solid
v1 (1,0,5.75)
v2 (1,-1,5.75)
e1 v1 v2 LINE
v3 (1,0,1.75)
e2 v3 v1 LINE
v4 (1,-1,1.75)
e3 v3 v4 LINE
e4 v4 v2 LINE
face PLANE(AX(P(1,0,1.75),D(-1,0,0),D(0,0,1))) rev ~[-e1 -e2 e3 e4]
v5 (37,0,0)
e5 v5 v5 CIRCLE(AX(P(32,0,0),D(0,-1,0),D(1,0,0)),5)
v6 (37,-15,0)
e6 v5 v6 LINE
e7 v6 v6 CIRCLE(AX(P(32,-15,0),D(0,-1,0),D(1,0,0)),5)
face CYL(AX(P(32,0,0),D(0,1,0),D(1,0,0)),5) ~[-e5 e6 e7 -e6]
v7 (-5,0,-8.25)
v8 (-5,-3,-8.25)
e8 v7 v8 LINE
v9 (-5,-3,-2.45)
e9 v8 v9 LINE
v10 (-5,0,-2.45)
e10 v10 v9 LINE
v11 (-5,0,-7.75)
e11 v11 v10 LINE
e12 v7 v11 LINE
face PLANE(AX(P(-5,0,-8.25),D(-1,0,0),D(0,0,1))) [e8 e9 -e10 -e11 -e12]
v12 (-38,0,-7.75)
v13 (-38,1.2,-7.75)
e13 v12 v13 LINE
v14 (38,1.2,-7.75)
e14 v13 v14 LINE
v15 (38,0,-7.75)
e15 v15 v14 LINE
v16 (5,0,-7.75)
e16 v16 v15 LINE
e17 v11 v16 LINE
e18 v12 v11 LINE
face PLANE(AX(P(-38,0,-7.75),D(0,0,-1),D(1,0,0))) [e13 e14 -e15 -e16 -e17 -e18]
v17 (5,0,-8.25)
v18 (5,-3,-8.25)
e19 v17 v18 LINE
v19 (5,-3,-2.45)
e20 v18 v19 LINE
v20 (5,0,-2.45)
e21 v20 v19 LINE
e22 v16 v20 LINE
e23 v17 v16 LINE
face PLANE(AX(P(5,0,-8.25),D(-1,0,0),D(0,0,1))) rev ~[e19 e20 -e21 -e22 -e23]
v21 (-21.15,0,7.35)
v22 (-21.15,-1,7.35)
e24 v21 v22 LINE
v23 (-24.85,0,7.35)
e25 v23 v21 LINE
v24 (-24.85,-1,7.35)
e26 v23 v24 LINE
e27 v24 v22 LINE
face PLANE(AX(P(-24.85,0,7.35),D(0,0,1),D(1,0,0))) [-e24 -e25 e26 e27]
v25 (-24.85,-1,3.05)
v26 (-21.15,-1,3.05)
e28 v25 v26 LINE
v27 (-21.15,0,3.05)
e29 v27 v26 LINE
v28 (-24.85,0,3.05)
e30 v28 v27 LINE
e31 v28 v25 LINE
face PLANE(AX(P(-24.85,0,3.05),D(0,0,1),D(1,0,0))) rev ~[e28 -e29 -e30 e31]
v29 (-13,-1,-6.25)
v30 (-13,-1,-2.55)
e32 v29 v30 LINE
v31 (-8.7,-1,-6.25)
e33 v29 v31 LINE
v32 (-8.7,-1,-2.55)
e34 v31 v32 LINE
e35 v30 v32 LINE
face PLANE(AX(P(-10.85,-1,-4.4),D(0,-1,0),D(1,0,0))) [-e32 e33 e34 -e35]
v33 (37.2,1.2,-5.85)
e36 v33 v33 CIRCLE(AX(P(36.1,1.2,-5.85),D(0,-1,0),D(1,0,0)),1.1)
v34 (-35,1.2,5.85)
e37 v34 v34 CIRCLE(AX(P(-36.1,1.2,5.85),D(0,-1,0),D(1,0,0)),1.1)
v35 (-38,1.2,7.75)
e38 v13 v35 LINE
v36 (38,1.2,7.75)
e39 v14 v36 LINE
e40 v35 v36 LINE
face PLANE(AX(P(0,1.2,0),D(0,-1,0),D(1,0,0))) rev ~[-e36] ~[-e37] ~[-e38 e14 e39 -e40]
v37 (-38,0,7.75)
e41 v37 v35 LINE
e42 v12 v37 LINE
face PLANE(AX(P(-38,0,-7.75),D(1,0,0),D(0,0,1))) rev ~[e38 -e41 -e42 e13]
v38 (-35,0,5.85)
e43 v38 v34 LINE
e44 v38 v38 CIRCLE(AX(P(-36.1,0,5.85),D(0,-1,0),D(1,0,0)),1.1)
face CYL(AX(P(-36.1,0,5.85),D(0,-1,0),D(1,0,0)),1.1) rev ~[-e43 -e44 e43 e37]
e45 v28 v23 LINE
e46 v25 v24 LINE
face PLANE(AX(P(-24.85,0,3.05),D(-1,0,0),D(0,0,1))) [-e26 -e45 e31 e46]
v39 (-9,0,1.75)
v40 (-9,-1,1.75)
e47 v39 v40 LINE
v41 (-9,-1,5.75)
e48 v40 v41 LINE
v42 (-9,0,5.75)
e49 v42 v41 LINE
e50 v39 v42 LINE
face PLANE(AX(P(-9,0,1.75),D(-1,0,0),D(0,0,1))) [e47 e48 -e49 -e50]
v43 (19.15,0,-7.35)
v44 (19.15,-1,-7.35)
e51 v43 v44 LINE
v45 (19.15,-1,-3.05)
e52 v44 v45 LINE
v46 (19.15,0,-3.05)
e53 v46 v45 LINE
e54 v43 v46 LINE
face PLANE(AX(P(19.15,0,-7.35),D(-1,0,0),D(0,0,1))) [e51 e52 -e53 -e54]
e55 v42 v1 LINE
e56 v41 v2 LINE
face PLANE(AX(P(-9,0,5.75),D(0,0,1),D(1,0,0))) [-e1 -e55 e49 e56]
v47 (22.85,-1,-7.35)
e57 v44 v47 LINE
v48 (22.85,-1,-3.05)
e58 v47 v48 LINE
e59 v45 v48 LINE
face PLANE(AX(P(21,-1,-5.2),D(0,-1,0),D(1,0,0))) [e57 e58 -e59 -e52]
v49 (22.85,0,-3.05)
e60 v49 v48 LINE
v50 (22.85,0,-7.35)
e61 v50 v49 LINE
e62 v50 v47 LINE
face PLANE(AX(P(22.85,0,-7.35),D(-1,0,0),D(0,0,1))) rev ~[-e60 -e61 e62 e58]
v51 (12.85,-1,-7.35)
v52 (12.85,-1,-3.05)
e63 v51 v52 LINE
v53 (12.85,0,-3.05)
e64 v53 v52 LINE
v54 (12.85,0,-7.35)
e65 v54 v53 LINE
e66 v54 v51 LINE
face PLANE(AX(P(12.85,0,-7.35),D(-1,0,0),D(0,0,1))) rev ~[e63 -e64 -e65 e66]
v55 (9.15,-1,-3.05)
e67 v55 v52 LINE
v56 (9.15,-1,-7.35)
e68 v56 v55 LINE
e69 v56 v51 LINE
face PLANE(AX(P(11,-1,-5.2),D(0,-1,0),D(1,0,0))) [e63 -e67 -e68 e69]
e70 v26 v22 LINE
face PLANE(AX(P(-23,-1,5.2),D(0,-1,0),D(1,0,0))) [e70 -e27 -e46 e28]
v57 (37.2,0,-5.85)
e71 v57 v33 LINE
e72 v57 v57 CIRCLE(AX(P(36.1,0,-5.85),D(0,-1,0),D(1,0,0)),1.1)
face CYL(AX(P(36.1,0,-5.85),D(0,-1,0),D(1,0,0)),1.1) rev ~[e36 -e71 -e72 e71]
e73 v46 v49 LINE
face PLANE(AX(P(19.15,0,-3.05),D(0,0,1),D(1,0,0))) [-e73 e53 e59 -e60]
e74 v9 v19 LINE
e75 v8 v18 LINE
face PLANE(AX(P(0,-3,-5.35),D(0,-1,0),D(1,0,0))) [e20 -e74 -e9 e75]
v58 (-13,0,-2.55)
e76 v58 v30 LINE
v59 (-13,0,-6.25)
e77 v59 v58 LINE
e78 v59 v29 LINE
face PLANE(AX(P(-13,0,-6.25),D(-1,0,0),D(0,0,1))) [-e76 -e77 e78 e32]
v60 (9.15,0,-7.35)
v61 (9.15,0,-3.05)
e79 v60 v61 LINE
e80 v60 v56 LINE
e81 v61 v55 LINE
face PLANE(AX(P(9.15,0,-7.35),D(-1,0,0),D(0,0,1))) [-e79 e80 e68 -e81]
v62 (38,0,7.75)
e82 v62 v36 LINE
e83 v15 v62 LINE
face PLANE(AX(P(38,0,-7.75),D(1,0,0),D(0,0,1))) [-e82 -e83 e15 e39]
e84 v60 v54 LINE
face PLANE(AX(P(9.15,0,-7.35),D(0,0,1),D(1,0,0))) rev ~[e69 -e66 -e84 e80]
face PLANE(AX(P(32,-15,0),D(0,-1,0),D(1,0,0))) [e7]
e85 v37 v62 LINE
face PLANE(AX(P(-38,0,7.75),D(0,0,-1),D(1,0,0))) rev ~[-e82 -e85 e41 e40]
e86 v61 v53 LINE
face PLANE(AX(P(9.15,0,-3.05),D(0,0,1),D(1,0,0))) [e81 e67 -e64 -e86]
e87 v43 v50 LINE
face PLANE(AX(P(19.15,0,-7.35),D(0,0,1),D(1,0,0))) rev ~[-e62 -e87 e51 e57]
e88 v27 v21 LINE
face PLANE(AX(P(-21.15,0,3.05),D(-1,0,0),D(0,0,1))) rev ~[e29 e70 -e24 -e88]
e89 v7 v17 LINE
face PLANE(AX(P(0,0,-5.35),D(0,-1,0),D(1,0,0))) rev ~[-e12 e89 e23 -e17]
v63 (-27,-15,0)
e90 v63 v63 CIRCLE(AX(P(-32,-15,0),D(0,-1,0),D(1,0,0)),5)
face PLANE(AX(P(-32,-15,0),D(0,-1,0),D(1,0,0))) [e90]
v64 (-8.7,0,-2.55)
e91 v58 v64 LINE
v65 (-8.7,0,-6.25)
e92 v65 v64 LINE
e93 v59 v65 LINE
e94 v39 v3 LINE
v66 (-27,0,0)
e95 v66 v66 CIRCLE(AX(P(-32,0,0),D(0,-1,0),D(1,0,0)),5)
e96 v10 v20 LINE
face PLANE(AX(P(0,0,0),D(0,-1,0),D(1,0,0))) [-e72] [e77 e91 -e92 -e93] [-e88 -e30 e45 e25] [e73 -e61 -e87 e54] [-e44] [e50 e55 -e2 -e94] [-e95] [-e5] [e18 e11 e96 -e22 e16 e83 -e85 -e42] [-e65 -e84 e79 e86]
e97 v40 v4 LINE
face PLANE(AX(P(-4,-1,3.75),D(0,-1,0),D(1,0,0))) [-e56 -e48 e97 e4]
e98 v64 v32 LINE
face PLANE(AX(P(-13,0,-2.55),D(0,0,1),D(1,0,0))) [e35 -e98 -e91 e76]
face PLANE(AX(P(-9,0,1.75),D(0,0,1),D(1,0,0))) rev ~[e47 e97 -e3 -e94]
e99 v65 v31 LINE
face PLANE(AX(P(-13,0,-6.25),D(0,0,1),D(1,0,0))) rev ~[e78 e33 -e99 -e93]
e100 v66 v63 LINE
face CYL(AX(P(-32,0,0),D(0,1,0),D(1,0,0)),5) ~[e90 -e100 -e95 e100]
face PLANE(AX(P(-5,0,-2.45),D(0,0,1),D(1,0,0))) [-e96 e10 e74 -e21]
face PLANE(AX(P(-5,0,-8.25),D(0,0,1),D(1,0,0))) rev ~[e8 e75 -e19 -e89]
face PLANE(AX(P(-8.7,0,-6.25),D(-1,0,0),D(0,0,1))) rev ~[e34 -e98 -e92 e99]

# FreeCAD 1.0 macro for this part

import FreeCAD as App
import Part
import Sketcher
Q = App.Units.Quantity

doc = App.newDocument("Part")
body = doc.addObject("PartDesign::Body", "Body")

sketch1 = body.newObject("Sketcher::SketchObject", "Sketch")
sketch1.AttachmentSupport = (doc.getObject("XZ_Plane"), [""])
sketch1.MapMode = "FlatFace"
sketch1.addGeometry(Part.LineSegment(App.Vector(-38, 7.75, 0), App.Vector(-38, -7.75, 0)), False)
sketch1.addGeometry(Part.LineSegment(App.Vector(-38, -7.75, 0), App.Vector(38, -7.75, 0)), False)
sketch1.addGeometry(Part.LineSegment(App.Vector(38, -7.75, 0), App.Vector(38, 7.75, 0)), False)
sketch1.addGeometry(Part.LineSegment(App.Vector(38, 7.75, 0), App.Vector(-38, 7.75, 0)), False)
sketch1.addGeometry(Part.Circle(App.Vector(36.1, -5.85, 0), App.Vector(0, 0, 1), 1.1), False)
sketch1.addGeometry(Part.Circle(App.Vector(-36.1, 5.85, 0), App.Vector(0, 0, 1), 1.1), False)
sketch1.addConstraint(Sketcher.Constraint("Coincident", 0, 2, 1, 1))
sketch1.addConstraint(Sketcher.Constraint("Coincident", 1, 2, 2, 1))
sketch1.addConstraint(Sketcher.Constraint("Coincident", 2, 2, 3, 1))
sketch1.addConstraint(Sketcher.Constraint("Coincident", 3, 2, 0, 1))
sketch1.addConstraint(Sketcher.Constraint("Vertical", 0))
sketch1.addConstraint(Sketcher.Constraint("Horizontal", 1))
sketch1.addConstraint(Sketcher.Constraint("Vertical", 2))
sketch1.addConstraint(Sketcher.Constraint("Horizontal", 3))
sketch1.addConstraint(Sketcher.Constraint("Equal", 4, 5))
sketch1.addConstraint(Sketcher.Constraint("Symmetric", 4, 3, 5, 3, -1, 1))
sketch1.addConstraint(Sketcher.Constraint("Symmetric", 0, 2, 2, 2, -1, 1))
sketch1.addConstraint(Sketcher.Constraint("Diameter", 4, Q("2.2 mm")))
sketch1.addConstraint(Sketcher.Constraint("DistanceX", 1, 1, 1, 2, Q("76 mm")))
sketch1.addConstraint(Sketcher.Constraint("DistanceY", 0, 2, 0, 1, Q("15.5 mm")))
sketch1.addConstraint(Sketcher.Constraint("DistanceX", -1, 1, 4, 3, Q("36.1 mm")))
sketch1.addConstraint(Sketcher.Constraint("DistanceY", 4, 3, 5, 3, Q("11.7 mm")))
pad1 = body.newObject("PartDesign::Pad", "Pad")
pad1.Profile = sketch1
pad1.Length = 1.2
pad1.Reversed = True

sketch2 = body.newObject("Sketcher::SketchObject", "Sketch001")
sketch2.AttachmentSupport = (doc.getObject("XZ_Plane"), [""])
sketch2.MapMode = "FlatFace"
sketch2.addGeometry(Part.LineSegment(App.Vector(9.15, -3.05, 0), App.Vector(9.15, -7.35, 0)), False)
sketch2.addGeometry(Part.LineSegment(App.Vector(9.15, -7.35, 0), App.Vector(12.85, -7.35, 0)), False)
sketch2.addGeometry(Part.LineSegment(App.Vector(12.85, -7.35, 0), App.Vector(12.85, -3.05, 0)), False)
sketch2.addGeometry(Part.LineSegment(App.Vector(12.85, -3.05, 0), App.Vector(9.15, -3.05, 0)), False)
sketch2.addGeometry(Part.LineSegment(App.Vector(-24.85, 7.35, 0), App.Vector(-24.85, 3.05, 0)), False)
sketch2.addGeometry(Part.LineSegment(App.Vector(-24.85, 3.05, 0), App.Vector(-21.15, 3.05, 0)), False)
sketch2.addGeometry(Part.LineSegment(App.Vector(-21.15, 3.05, 0), App.Vector(-21.15, 7.35, 0)), False)
sketch2.addGeometry(Part.LineSegment(App.Vector(-21.15, 7.35, 0), App.Vector(-24.85, 7.35, 0)), False)
sketch2.addGeometry(Part.LineSegment(App.Vector(19.15, -3.05, 0), App.Vector(19.15, -7.35, 0)), False)
sketch2.addGeometry(Part.LineSegment(App.Vector(19.15, -7.35, 0), App.Vector(22.85, -7.35, 0)), False)
sketch2.addGeometry(Part.LineSegment(App.Vector(22.85, -7.35, 0), App.Vector(22.85, -3.05, 0)), False)
sketch2.addGeometry(Part.LineSegment(App.Vector(22.85, -3.05, 0), App.Vector(19.15, -3.05, 0)), False)
sketch2.addGeometry(Part.LineSegment(App.Vector(-9, 5.75, 0), App.Vector(-9, 1.75, 0)), False)
sketch2.addGeometry(Part.LineSegment(App.Vector(-9, 1.75, 0), App.Vector(1, 1.75, 0)), False)
sketch2.addGeometry(Part.LineSegment(App.Vector(1, 1.75, 0), App.Vector(1, 5.75, 0)), False)
sketch2.addGeometry(Part.LineSegment(App.Vector(1, 5.75, 0), App.Vector(-9, 5.75, 0)), False)
sketch2.addGeometry(Part.LineSegment(App.Vector(-13, -2.55, 0), App.Vector(-13, -6.25, 0)), False)
sketch2.addGeometry(Part.LineSegment(App.Vector(-13, -6.25, 0), App.Vector(-8.7, -6.25, 0)), False)
sketch2.addGeometry(Part.LineSegment(App.Vector(-8.7, -6.25, 0), App.Vector(-8.7, -2.55, 0)), False)
sketch2.addGeometry(Part.LineSegment(App.Vector(-8.7, -2.55, 0), App.Vector(-13, -2.55, 0)), False)
sketch2.addConstraint(Sketcher.Constraint("Coincident", 0, 2, 1, 1))
sketch2.addConstraint(Sketcher.Constraint("Coincident", 1, 2, 2, 1))
sketch2.addConstraint(Sketcher.Constraint("Coincident", 2, 2, 3, 1))
sketch2.addConstraint(Sketcher.Constraint("Coincident", 3, 2, 0, 1))
sketch2.addConstraint(Sketcher.Constraint("Coincident", 4, 2, 5, 1))
sketch2.addConstraint(Sketcher.Constraint("Coincident", 5, 2, 6, 1))
sketch2.addConstraint(Sketcher.Constraint("Coincident", 6, 2, 7, 1))
sketch2.addConstraint(Sketcher.Constraint("Coincident", 7, 2, 4, 1))
sketch2.addConstraint(Sketcher.Constraint("Coincident", 8, 2, 9, 1))
sketch2.addConstraint(Sketcher.Constraint("Coincident", 9, 2, 10, 1))
sketch2.addConstraint(Sketcher.Constraint("Coincident", 10, 2, 11, 1))
sketch2.addConstraint(Sketcher.Constraint("Coincident", 11, 2, 8, 1))
sketch2.addConstraint(Sketcher.Constraint("Coincident", 12, 2, 13, 1))
sketch2.addConstraint(Sketcher.Constraint("Coincident", 13, 2, 14, 1))
sketch2.addConstraint(Sketcher.Constraint("Coincident", 14, 2, 15, 1))
sketch2.addConstraint(Sketcher.Constraint("Coincident", 15, 2, 12, 1))
sketch2.addConstraint(Sketcher.Constraint("Coincident", 16, 2, 17, 1))
sketch2.addConstraint(Sketcher.Constraint("Coincident", 17, 2, 18, 1))
sketch2.addConstraint(Sketcher.Constraint("Coincident", 18, 2, 19, 1))
sketch2.addConstraint(Sketcher.Constraint("Coincident", 19, 2, 16, 1))
sketch2.addConstraint(Sketcher.Constraint("Vertical", 0))
sketch2.addConstraint(Sketcher.Constraint("Horizontal", 1))
sketch2.addConstraint(Sketcher.Constraint("Vertical", 2))
sketch2.addConstraint(Sketcher.Constraint("Horizontal", 3))
sketch2.addConstraint(Sketcher.Constraint("Vertical", 4))
sketch2.addConstraint(Sketcher.Constraint("Horizontal", 5))
sketch2.addConstraint(Sketcher.Constraint("Vertical", 6))
sketch2.addConstraint(Sketcher.Constraint("Horizontal", 7))
sketch2.addConstraint(Sketcher.Constraint("Vertical", 8))
sketch2.addConstraint(Sketcher.Constraint("Horizontal", 9))
sketch2.addConstraint(Sketcher.Constraint("Vertical", 10))
sketch2.addConstraint(Sketcher.Constraint("Horizontal", 11))
sketch2.addConstraint(Sketcher.Constraint("Vertical", 12))
sketch2.addConstraint(Sketcher.Constraint("Horizontal", 13))
sketch2.addConstraint(Sketcher.Constraint("Vertical", 14))
sketch2.addConstraint(Sketcher.Constraint("Horizontal", 15))
sketch2.addConstraint(Sketcher.Constraint("Vertical", 16))
sketch2.addConstraint(Sketcher.Constraint("Horizontal", 17))
sketch2.addConstraint(Sketcher.Constraint("Vertical", 18))
sketch2.addConstraint(Sketcher.Constraint("Horizontal", 19))
sketch2.addConstraint(Sketcher.Constraint("Horizontal", 1, 2, 8, 2))
sketch2.addConstraint(Sketcher.Constraint("Horizontal", 3, 2, 10, 2))
sketch2.addConstraint(Sketcher.Constraint("Equal", 3, 5))
sketch2.addConstraint(Sketcher.Constraint("Equal", 7, 9))
sketch2.addConstraint(Sketcher.Constraint("Equal", 19, 0))
sketch2.addConstraint(Sketcher.Constraint("Equal", 2, 4))
sketch2.addConstraint(Sketcher.Constraint("Equal", 11, 16))
sketch2.addConstraint(Sketcher.Constraint("DistanceX", 13, 1, 13, 2, Q("10 mm")))
sketch2.addConstraint(Sketcher.Constraint("DistanceY", 12, 2, 12, 1, Q("4 mm")))
sketch2.addConstraint(Sketcher.Constraint("DistanceX", 1, 1, 1, 2, Q("3.7 mm")))
sketch2.addConstraint(Sketcher.Constraint("DistanceX", 17, 1, 17, 2, Q("4.3 mm")))
sketch2.addConstraint(Sketcher.Constraint("DistanceX", 12, 2, -1, 1, Q("9 mm")))
sketch2.addConstraint(Sketcher.Constraint("DistanceX", 16, 2, -1, 1, Q("13 mm")))
sketch2.addConstraint(Sketcher.Constraint("DistanceX", 4, 2, 3, 2, Q("34 mm")))
sketch2.addConstraint(Sketcher.Constraint("DistanceX", 0, 2, 8, 2, Q("10 mm")))
sketch2.addConstraint(Sketcher.Constraint("DistanceY", 16, 2, 12, 2, Q("8 mm")))
sketch2.addConstraint(Sketcher.Constraint("DistanceY", 3, 2, 4, 2, Q("6.1 mm")))
sketch2.addConstraint(Sketcher.Constraint("DistanceY", 12, 2, 5, 2, Q("1.3 mm")))
sketch2.addConstraint(Sketcher.Constraint("DistanceX", -1, 1, 0, 2, Q("9.15 mm")))
sketch2.addConstraint(Sketcher.Constraint("DistanceY", 0, 2, -1, 1, Q("7.35 mm")))
pad2 = body.newObject("PartDesign::Pad", "Pad001")
pad2.Profile = sketch2
pad2.Length = 1

sketch3 = body.newObject("Sketcher::SketchObject", "Sketch002")
sketch3.AttachmentSupport = (doc.getObject("XZ_Plane"), [""])
sketch3.MapMode = "FlatFace"
sketch3.addGeometry(Part.Circle(App.Vector(32, 0, 0), App.Vector(0, 0, 1), 5), False)
sketch3.addGeometry(Part.Circle(App.Vector(-32, 0, 0), App.Vector(0, 0, 1), 5), False)
sketch3.addConstraint(Sketcher.Constraint("Equal", 0, 1))
sketch3.addConstraint(Sketcher.Constraint("Symmetric", 0, 3, 1, 3, -1, 1))
sketch3.addConstraint(Sketcher.Constraint("PointOnObject", 0, 3, -1))
sketch3.addConstraint(Sketcher.Constraint("Diameter", 0, Q("10 mm")))
sketch3.addConstraint(Sketcher.Constraint("DistanceX", -1, 1, 0, 3, Q("32 mm")))
pad3 = body.newObject("PartDesign::Pad", "Pad002")
pad3.Profile = sketch3
pad3.Length = 15

sketch4 = body.newObject("Sketcher::SketchObject", "Sketch003")
sketch4.AttachmentSupport = (doc.getObject("XZ_Plane"), [""])
sketch4.MapMode = "FlatFace"
sketch4.addGeometry(Part.LineSegment(App.Vector(-5, -2.45, 0), App.Vector(-5, -8.25, 0)), False)
sketch4.addGeometry(Part.LineSegment(App.Vector(-5, -8.25, 0), App.Vector(5, -8.25, 0)), False)
sketch4.addGeometry(Part.LineSegment(App.Vector(5, -8.25, 0), App.Vector(5, -2.45, 0)), False)
sketch4.addGeometry(Part.LineSegment(App.Vector(5, -2.45, 0), App.Vector(-5, -2.45, 0)), False)
sketch4.addConstraint(Sketcher.Constraint("Coincident", 0, 2, 1, 1))
sketch4.addConstraint(Sketcher.Constraint("Coincident", 1, 2, 2, 1))
sketch4.addConstraint(Sketcher.Constraint("Coincident", 2, 2, 3, 1))
sketch4.addConstraint(Sketcher.Constraint("Coincident", 3, 2, 0, 1))
sketch4.addConstraint(Sketcher.Constraint("Vertical", 0))
sketch4.addConstraint(Sketcher.Constraint("Horizontal", 1))
sketch4.addConstraint(Sketcher.Constraint("Vertical", 2))
sketch4.addConstraint(Sketcher.Constraint("Horizontal", 3))
sketch4.addConstraint(Sketcher.Constraint("DistanceX", 1, 1, 1, 2, Q("10 mm")))
sketch4.addConstraint(Sketcher.Constraint("DistanceY", 0, 2, 0, 1, Q("5.8 mm")))
sketch4.addConstraint(Sketcher.Constraint("DistanceX", 0, 2, -1, 1, Q("5 mm")))
sketch4.addConstraint(Sketcher.Constraint("DistanceY", 0, 2, -1, 1, Q("8.25 mm")))
pad4 = body.newObject("PartDesign::Pad", "Pad003")
pad4.Profile = sketch4
pad4.Length = 3

doc.recompute()
